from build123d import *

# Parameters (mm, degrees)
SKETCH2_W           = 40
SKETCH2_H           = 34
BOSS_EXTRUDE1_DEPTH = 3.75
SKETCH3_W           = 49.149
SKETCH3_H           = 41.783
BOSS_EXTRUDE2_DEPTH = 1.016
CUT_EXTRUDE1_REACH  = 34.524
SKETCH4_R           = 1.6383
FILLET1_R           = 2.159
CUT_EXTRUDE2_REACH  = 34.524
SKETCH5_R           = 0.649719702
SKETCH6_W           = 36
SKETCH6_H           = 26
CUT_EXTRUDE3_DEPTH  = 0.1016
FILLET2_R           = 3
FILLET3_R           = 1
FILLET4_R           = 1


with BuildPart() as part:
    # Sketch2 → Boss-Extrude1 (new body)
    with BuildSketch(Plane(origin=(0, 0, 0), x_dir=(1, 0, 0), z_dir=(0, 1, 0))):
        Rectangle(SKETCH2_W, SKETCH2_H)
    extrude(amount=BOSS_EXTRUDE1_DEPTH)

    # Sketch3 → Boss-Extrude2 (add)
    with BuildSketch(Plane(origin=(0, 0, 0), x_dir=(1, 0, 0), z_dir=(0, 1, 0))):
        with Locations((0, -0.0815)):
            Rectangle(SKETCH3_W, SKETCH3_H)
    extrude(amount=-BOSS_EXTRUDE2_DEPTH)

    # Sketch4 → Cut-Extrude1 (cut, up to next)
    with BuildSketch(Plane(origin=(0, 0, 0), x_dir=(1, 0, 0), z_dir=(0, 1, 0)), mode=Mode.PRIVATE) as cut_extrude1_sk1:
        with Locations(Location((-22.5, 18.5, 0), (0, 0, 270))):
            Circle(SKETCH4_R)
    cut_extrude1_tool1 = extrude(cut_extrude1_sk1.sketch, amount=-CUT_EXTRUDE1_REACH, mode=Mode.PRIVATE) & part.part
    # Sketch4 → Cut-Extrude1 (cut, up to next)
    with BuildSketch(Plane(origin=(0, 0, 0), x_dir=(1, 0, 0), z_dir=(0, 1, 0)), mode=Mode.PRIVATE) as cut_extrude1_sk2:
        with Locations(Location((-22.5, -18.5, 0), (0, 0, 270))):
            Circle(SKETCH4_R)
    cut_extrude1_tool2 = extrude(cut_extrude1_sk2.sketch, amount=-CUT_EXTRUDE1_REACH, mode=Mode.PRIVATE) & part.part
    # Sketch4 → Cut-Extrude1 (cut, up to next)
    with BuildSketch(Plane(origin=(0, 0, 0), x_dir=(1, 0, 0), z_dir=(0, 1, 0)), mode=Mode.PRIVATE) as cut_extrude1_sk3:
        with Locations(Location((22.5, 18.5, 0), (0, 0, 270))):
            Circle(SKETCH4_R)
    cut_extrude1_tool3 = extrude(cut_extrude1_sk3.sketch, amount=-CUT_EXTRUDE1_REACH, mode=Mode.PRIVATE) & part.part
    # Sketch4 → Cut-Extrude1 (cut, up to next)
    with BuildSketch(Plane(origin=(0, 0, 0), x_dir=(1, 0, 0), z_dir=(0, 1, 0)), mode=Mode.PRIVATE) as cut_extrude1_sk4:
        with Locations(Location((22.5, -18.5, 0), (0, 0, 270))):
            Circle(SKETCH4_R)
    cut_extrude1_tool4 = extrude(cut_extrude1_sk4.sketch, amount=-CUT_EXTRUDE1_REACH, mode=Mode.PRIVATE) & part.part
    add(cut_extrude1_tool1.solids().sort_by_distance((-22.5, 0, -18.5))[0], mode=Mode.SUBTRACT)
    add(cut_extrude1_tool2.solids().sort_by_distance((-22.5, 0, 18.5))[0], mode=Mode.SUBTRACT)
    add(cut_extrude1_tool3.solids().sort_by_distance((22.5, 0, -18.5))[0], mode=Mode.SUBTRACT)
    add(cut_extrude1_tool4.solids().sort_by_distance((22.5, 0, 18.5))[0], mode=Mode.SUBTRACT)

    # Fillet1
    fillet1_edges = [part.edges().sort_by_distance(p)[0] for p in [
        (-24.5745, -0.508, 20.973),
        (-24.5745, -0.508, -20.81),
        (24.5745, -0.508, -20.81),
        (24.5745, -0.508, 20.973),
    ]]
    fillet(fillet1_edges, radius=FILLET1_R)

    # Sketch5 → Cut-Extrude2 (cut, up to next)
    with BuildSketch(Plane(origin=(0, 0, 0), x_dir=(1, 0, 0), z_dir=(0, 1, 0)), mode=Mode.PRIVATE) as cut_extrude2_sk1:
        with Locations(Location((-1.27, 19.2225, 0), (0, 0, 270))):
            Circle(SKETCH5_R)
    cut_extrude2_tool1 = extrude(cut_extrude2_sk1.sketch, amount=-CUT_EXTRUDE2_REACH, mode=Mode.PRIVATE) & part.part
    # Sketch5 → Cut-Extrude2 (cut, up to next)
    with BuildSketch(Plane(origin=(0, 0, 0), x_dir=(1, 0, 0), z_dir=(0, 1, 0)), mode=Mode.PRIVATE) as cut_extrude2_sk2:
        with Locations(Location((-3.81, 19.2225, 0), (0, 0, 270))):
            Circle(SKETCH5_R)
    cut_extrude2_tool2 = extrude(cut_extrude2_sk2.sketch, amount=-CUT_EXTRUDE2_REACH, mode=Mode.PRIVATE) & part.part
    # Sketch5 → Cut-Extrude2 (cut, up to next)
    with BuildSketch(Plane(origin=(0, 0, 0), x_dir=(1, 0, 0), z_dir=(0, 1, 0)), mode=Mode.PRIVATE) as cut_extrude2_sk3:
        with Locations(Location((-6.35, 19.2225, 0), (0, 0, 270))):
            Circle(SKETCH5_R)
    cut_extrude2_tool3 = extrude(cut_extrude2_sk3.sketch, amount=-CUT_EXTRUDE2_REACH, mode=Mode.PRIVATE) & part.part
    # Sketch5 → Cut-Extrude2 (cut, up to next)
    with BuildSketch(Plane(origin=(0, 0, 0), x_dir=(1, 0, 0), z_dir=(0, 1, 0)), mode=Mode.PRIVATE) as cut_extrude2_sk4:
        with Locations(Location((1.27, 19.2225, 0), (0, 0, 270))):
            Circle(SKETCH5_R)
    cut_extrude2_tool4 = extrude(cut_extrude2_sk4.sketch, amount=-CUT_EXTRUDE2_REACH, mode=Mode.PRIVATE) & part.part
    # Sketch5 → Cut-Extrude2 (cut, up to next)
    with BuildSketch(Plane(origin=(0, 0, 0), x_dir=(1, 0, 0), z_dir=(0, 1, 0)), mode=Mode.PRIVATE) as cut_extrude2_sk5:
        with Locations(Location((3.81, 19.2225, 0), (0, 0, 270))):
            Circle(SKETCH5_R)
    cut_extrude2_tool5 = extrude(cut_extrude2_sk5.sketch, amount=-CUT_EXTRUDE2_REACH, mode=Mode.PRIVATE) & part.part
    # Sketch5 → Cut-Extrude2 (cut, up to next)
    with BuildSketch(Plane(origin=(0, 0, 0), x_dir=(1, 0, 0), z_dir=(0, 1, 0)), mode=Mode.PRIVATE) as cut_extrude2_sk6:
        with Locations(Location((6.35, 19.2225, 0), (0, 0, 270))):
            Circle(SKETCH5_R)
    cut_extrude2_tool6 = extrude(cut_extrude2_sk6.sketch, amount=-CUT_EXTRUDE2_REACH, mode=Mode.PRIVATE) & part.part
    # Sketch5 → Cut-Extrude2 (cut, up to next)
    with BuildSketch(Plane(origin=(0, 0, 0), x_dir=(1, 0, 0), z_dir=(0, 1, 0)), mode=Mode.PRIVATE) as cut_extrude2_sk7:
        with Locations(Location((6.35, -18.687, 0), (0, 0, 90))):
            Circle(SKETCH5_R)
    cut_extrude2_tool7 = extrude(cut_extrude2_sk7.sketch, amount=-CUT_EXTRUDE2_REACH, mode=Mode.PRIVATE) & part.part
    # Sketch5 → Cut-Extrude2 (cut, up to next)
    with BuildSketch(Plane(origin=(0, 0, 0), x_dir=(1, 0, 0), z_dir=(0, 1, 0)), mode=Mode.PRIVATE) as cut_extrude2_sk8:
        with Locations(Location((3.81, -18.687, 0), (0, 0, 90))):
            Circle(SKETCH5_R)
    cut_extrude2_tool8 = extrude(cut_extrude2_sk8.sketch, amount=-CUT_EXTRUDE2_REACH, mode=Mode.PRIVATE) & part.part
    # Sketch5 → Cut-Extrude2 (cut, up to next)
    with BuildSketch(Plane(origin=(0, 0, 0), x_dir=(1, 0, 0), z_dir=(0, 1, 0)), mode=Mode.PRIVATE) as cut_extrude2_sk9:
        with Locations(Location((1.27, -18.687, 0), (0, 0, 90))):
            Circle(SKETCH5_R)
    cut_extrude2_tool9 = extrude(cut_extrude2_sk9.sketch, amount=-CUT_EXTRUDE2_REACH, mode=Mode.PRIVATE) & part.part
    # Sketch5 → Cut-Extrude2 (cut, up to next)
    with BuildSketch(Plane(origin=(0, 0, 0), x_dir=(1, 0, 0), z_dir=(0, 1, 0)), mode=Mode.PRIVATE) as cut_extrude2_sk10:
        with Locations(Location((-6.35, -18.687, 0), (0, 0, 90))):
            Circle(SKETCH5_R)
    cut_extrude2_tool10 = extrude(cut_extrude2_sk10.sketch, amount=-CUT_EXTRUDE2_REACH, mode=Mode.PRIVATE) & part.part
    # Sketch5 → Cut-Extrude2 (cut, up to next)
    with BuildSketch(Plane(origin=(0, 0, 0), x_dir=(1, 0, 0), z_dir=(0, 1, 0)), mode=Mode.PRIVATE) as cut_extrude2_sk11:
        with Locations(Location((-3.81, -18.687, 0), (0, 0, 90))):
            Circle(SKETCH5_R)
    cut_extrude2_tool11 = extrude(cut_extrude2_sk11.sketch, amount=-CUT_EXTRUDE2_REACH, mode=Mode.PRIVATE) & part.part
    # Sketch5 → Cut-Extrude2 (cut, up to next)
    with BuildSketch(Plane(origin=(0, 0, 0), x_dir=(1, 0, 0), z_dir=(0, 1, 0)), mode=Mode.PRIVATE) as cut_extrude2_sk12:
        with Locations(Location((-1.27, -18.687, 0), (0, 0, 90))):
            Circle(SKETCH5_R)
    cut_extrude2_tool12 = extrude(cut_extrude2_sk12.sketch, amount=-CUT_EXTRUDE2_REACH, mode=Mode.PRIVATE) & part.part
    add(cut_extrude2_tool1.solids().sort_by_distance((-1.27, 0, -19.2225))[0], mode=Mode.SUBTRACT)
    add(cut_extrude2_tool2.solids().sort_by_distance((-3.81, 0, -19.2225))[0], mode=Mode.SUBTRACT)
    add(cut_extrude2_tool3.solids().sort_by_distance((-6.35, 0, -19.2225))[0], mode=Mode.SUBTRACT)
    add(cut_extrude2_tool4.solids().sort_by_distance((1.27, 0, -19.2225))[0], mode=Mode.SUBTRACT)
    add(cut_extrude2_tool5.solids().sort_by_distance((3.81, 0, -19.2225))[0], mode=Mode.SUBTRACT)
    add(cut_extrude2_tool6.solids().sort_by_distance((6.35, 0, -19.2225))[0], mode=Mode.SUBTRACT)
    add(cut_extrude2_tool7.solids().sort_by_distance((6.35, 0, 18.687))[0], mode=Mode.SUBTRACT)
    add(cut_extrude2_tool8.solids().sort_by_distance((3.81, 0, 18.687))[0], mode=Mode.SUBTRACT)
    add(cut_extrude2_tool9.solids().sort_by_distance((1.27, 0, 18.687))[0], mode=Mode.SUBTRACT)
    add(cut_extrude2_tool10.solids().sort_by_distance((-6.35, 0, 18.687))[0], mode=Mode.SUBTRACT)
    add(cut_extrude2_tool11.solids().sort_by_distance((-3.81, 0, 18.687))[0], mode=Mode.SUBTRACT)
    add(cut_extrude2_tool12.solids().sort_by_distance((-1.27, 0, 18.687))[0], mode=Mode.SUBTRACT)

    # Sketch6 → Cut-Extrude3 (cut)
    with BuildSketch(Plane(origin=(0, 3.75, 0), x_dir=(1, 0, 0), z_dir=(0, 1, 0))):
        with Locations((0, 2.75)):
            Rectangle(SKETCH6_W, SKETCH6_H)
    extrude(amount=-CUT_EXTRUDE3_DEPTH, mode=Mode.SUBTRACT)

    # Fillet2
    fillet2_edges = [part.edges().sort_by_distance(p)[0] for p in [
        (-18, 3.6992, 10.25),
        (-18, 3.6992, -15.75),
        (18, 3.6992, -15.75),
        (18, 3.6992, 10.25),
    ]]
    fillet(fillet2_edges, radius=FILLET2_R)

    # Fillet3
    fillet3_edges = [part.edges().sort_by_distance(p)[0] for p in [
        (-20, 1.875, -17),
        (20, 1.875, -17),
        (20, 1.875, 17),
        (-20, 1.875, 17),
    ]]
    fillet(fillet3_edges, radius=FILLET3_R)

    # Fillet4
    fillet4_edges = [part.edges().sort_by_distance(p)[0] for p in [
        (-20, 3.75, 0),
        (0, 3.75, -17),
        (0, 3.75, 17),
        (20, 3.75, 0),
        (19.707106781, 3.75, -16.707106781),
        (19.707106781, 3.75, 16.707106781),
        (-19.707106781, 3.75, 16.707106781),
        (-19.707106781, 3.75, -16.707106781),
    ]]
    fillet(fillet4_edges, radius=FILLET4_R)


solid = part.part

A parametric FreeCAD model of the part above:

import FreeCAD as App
import Part
import Sketcher
from FreeCAD import Vector
Q = App.Units.Quantity


def edges_at(feature, points):
    """Names of the edges that pass closest to the given points."""
    edges = feature.Shape.Edges
    near = lambda p: min(range(len(edges)), key=lambda i: edges[i].distToShape(Part.Vertex(*p))[0])
    return sorted({f"Edge{near(p) + 1}" for p in points})

doc = App.newDocument("Part")
params = doc.addObject("Spreadsheet::Sheet", "Params")
for row, (alias, value) in enumerate([
    ("sketch1_width", "40 mm"),
    ("sketch1_height", "34 mm"),
    ("pad1_length", "3.75 mm"),
    ("pad2_length", "1.016 mm"),
    ("fillet_radius", "2.159 mm"),
    ("sketch19_width", "36 mm"),
    ("sketch19_height", "26 mm"),
    ("pocket17_length", "0.1016 mm"),
    ("fillet2_radius", "3 mm"),
    ("fillet3_radius", "1 mm"),
    ("fillet4_radius", "1 mm"),
], start=1):
    params.set(f"A{row}", alias)
    params.set(f"B{row}", "=" + value)
    params.setAlias(f"B{row}", alias)

body = doc.addObject("PartDesign::Body", "Body")

# Sketch on XZ plane
sketch1 = doc.addObject("Sketcher::SketchObject", "Sketch")
body.addObject(sketch1)
sketch1.AttachmentSupport = (doc.XZ_Plane, [""])
sketch1.MapMode = "FlatFace"
sketch1.addGeometry([
    Part.LineSegment(Vector(-20, -17, 0), Vector(-20, 17, 0)),
    Part.LineSegment(Vector(-20, 17, 0), Vector(20, 17, 0)),
    Part.LineSegment(Vector(20, 17, 0), Vector(20, -17, 0)),
    Part.LineSegment(Vector(20, -17, 0), Vector(-20, -17, 0)),
], False)
sketch1.addConstraint([
    Sketcher.Constraint("Coincident", 0, 2, 1, 1),
    Sketcher.Constraint("Coincident", 1, 2, 2, 1),
    Sketcher.Constraint("Coincident", 2, 2, 3, 1),
    Sketcher.Constraint("Coincident", 3, 2, 0, 1),
    Sketcher.Constraint("Vertical", 0),
    Sketcher.Constraint("Horizontal", 1),
    Sketcher.Constraint("Vertical", 2),
    Sketcher.Constraint("Horizontal", 3),
    Sketcher.Constraint("Symmetric", 0, 2, 2, 2, -1, 1),
    Sketcher.Constraint("DistanceX", 1, 1, 1, 2, Q("40 mm")),
    Sketcher.Constraint("DistanceY", 0, 1, 0, 2, Q("34 mm")),
])
sketch1.setExpression("Constraints[9]", "Params.sketch1_width")
sketch1.setExpression("Constraints[10]", "Params.sketch1_height")
pad1 = doc.addObject("PartDesign::Pad", "Pad")
body.addObject(pad1)
pad1.Profile = sketch1
pad1.setExpression("Length", "Params.pad1_length")
pad1.Reversed = True

# Sketch on XZ plane
sketch2 = doc.addObject("Sketcher::SketchObject", "Sketch001")
body.addObject(sketch2)
sketch2.AttachmentSupport = (doc.XZ_Plane, [""])
sketch2.MapMode = "FlatFace"
sketch2.addGeometry([
    Part.LineSegment(Vector(-25, -21, 0), Vector(-25, 21, 0)),
    Part.LineSegment(Vector(-25, 21, 0), Vector(25, 21, 0)),
    Part.LineSegment(Vector(25, 21, 0), Vector(25, -21, 0)),
    Part.LineSegment(Vector(25, -21, 0), Vector(-25, -21, 0)),
], False)
sketch2.addConstraint([
    Sketcher.Constraint("Coincident", 0, 2, 1, 1),
    Sketcher.Constraint("Coincident", 1, 2, 2, 1),
    Sketcher.Constraint("Coincident", 2, 2, 3, 1),
    Sketcher.Constraint("Coincident", 3, 2, 0, 1),
    Sketcher.Constraint("Vertical", 0),
    Sketcher.Constraint("Horizontal", 1),
    Sketcher.Constraint("Vertical", 2),
    Sketcher.Constraint("Horizontal", 3),
    Sketcher.Constraint("DistanceX", 1, 1, 1, 2, Q("49.149 mm")),
    Sketcher.Constraint("DistanceY", 0, 1, 0, 2, Q("41.783 mm")),
    Sketcher.Constraint("DistanceY", 2, 2, -1, 1, Q("20.81 mm")),
    Sketcher.Constraint("DistanceX", 0, 2, -1, 1, Q("24.5745 mm")),
])
pad2 = doc.addObject("PartDesign::Pad", "Pad001")
body.addObject(pad2)
pad2.Profile = sketch2
pad2.setExpression("Length", "Params.pad2_length")

# Sketch on XZ plane
sketch3 = doc.addObject("Sketcher::SketchObject", "Sketch002")
body.addObject(sketch3)
sketch3.AttachmentSupport = (doc.XZ_Plane, [""])
sketch3.MapMode = "FlatFace"
sketch3.addGeometry(Part.Circle(Vector(-22.5, -18.5, 0), Vector(0, 0, 1), 1.6), False)
sketch3.addConstraint([
    Sketcher.Constraint("Diameter", 0, Q("3.2766 mm")),
    Sketcher.Constraint("DistanceX", 0, 3, -1, 1, Q("22.5 mm")),
    Sketcher.Constraint("DistanceY", 0, 3, -1, 1, Q("18.5 mm")),
])
pocket1 = doc.addObject("PartDesign::Pocket", "Pocket")
body.addObject(pocket1)
pocket1.Profile = sketch3
pocket1.Type = "UpToFirst"
pocket1.Reversed = True

# Sketch on XZ plane
sketch4 = doc.addObject("Sketcher::SketchObject", "Sketch003")
body.addObject(sketch4)
sketch4.AttachmentSupport = (doc.XZ_Plane, [""])
sketch4.MapMode = "FlatFace"
sketch4.addGeometry(Part.Circle(Vector(-22.5, 18.5, 0), Vector(0, 0, 1), 1.6), False)
sketch4.addConstraint([
    Sketcher.Constraint("Diameter", 0, Q("3.2766 mm")),
    Sketcher.Constraint("DistanceX", 0, 3, -1, 1, Q("22.5 mm")),
    Sketcher.Constraint("DistanceY", -1, 1, 0, 3, Q("18.5 mm")),
])
pocket2 = doc.addObject("PartDesign::Pocket", "Pocket001")
body.addObject(pocket2)
pocket2.Profile = sketch4
pocket2.Type = "UpToFirst"
pocket2.Reversed = True

# Sketch on XZ plane
sketch5 = doc.addObject("Sketcher::SketchObject", "Sketch004")
body.addObject(sketch5)
sketch5.AttachmentSupport = (doc.XZ_Plane, [""])
sketch5.MapMode = "FlatFace"
sketch5.addGeometry(Part.Circle(Vector(22.5, -18.5, 0), Vector(0, 0, 1), 1.6), False)
sketch5.addConstraint([
    Sketcher.Constraint("Diameter", 0, Q("3.2766 mm")),
    Sketcher.Constraint("DistanceX", -1, 1, 0, 3, Q("22.5 mm")),
    Sketcher.Constraint("DistanceY", 0, 3, -1, 1, Q("18.5 mm")),
])
pocket3 = doc.addObject("PartDesign::Pocket", "Pocket002")
body.addObject(pocket3)
pocket3.Profile = sketch5
pocket3.Type = "UpToFirst"
pocket3.Reversed = True

# Sketch on XZ plane
sketch6 = doc.addObject("Sketcher::SketchObject", "Sketch005")
body.addObject(sketch6)
sketch6.AttachmentSupport = (doc.XZ_Plane, [""])
sketch6.MapMode = "FlatFace"
sketch6.addGeometry(Part.Circle(Vector(22.5, 18.5, 0), Vector(0, 0, 1), 1.6), False)
sketch6.addConstraint([
    Sketcher.Constraint("Diameter", 0, Q("3.2766 mm")),
    Sketcher.Constraint("DistanceX", -1, 1, 0, 3, Q("22.5 mm")),
    Sketcher.Constraint("DistanceY", -1, 1, 0, 3, Q("18.5 mm")),
])
pocket4 = doc.addObject("PartDesign::Pocket", "Pocket003")
body.addObject(pocket4)
pocket4.Profile = sketch6
pocket4.Type = "UpToFirst"
pocket4.Reversed = True
doc.recompute()

fillet = doc.addObject("PartDesign::Fillet", "Fillet")
body.addObject(fillet)
fillet.Base = (pocket4, edges_at(pocket4, [
    (-24.575, -0.508, 20.973),
    (-24.575, -0.508, -20.81),
    (24.575, -0.508, -20.81),
    (24.575, -0.508, 20.973),
]))
fillet.setExpression("Radius", "Params.fillet_radius")

# Sketch on XZ plane
sketch7 = doc.addObject("Sketcher::SketchObject", "Sketch006")
body.addObject(sketch7)
sketch7.AttachmentSupport = (doc.XZ_Plane, [""])
sketch7.MapMode = "FlatFace"
sketch7.addGeometry(Part.Circle(Vector(-1.3, -19.2, 0), Vector(0, 0, 1), 0.6), False)
sketch7.addConstraint([
    Sketcher.Constraint("Diameter", 0, Q("1.299439 mm")),
    Sketcher.Constraint("DistanceX", 0, 3, -1, 1, Q("1.27 mm")),
    Sketcher.Constraint("DistanceY", 0, 3, -1, 1, Q("19.2225 mm")),
])
pocket5 = doc.addObject("PartDesign::Pocket", "Pocket004")
body.addObject(pocket5)
pocket5.Profile = sketch7
pocket5.Type = "UpToFirst"
pocket5.Reversed = True

# Sketch on XZ plane
sketch8 = doc.addObject("Sketcher::SketchObject", "Sketch007")
body.addObject(sketch8)
sketch8.AttachmentSupport = (doc.XZ_Plane, [""])
sketch8.MapMode = "FlatFace"
sketch8.addGeometry(Part.Circle(Vector(-3.8, -19.2, 0), Vector(0, 0, 1), 0.6), False)
sketch8.addConstraint([
    Sketcher.Constraint("Diameter", 0, Q("1.299439 mm")),
    Sketcher.Constraint("DistanceX", 0, 3, -1, 1, Q("3.81 mm")),
    Sketcher.Constraint("DistanceY", 0, 3, -1, 1, Q("19.2225 mm")),
])
pocket6 = doc.addObject("PartDesign::Pocket", "Pocket005")
body.addObject(pocket6)
pocket6.Profile = sketch8
pocket6.Type = "UpToFirst"
pocket6.Reversed = True

# Sketch on XZ plane
sketch9 = doc.addObject("Sketcher::SketchObject", "Sketch008")
body.addObject(sketch9)
sketch9.AttachmentSupport = (doc.XZ_Plane, [""])
sketch9.MapMode = "FlatFace"
sketch9.addGeometry(Part.Circle(Vector(-6.3, -19.2, 0), Vector(0, 0, 1), 0.6), False)
sketch9.addConstraint([
    Sketcher.Constraint("Diameter", 0, Q("1.299439 mm")),
    Sketcher.Constraint("DistanceX", 0, 3, -1, 1, Q("6.35 mm")),
    Sketcher.Constraint("DistanceY", 0, 3, -1, 1, Q("19.2225 mm")),
])
pocket7 = doc.addObject("PartDesign::Pocket", "Pocket006")
body.addObject(pocket7)
pocket7.Profile = sketch9
pocket7.Type = "UpToFirst"
pocket7.Reversed = True

# Sketch on XZ plane
sketch10 = doc.addObject("Sketcher::SketchObject", "Sketch009")
body.addObject(sketch10)
sketch10.AttachmentSupport = (doc.XZ_Plane, [""])
sketch10.MapMode = "FlatFace"
sketch10.addGeometry(Part.Circle(Vector(1.3, -19.2, 0), Vector(0, 0, 1), 0.6), False)
sketch10.addConstraint([
    Sketcher.Constraint("Diameter", 0, Q("1.299439 mm")),
    Sketcher.Constraint("DistanceX", -1, 1, 0, 3, Q("1.27 mm")),
    Sketcher.Constraint("DistanceY", 0, 3, -1, 1, Q("19.2225 mm")),
])
pocket8 = doc.addObject("PartDesign::Pocket", "Pocket007")
body.addObject(pocket8)
pocket8.Profile = sketch10
pocket8.Type = "UpToFirst"
pocket8.Reversed = True

# Sketch on XZ plane
sketch11 = doc.addObject("Sketcher::SketchObject", "Sketch010")
body.addObject(sketch11)
sketch11.AttachmentSupport = (doc.XZ_Plane, [""])
sketch11.MapMode = "FlatFace"
sketch11.addGeometry(Part.Circle(Vector(3.8, -19.2, 0), Vector(0, 0, 1), 0.6), False)
sketch11.addConstraint([
    Sketcher.Constraint("Diameter", 0, Q("1.299439 mm")),
    Sketcher.Constraint("DistanceX", -1, 1, 0, 3, Q("3.81 mm")),
    Sketcher.Constraint("DistanceY", 0, 3, -1, 1, Q("19.2225 mm")),
])
pocket9 = doc.addObject("PartDesign::Pocket", "Pocket008")
body.addObject(pocket9)
pocket9.Profile = sketch11
pocket9.Type = "UpToFirst"
pocket9.Reversed = True

# Sketch on XZ plane
sketch12 = doc.addObject("Sketcher::SketchObject", "Sketch011")
body.addObject(sketch12)
sketch12.AttachmentSupport = (doc.XZ_Plane, [""])
sketch12.MapMode = "FlatFace"
sketch12.addGeometry(Part.Circle(Vector(6.3, -19.2, 0), Vector(0, 0, 1), 0.6), False)
sketch12.addConstraint([
    Sketcher.Constraint("Diameter", 0, Q("1.299439 mm")),
    Sketcher.Constraint("DistanceX", -1, 1, 0, 3, Q("6.35 mm")),
    Sketcher.Constraint("DistanceY", 0, 3, -1, 1, Q("19.2225 mm")),
])
pocket10 = doc.addObject("PartDesign::Pocket", "Pocket009")
body.addObject(pocket10)
pocket10.Profile = sketch12
pocket10.Type = "UpToFirst"
pocket10.Reversed = True

# Sketch on XZ plane
sketch13 = doc.addObject("Sketcher::SketchObject", "Sketch012")
body.addObject(sketch13)
sketch13.AttachmentSupport = (doc.XZ_Plane, [""])
sketch13.MapMode = "FlatFace"
sketch13.addGeometry(Part.Circle(Vector(6.3, 18.7, 0), Vector(0, 0, 1), 0.6), False)
sketch13.addConstraint([
    Sketcher.Constraint("Diameter", 0, Q("1.299439 mm")),
    Sketcher.Constraint("DistanceX", -1, 1, 0, 3, Q("6.35 mm")),
    Sketcher.Constraint("DistanceY", -1, 1, 0, 3, Q("18.687 mm")),
])
pocket11 = doc.addObject("PartDesign::Pocket", "Pocket010")
body.addObject(pocket11)
pocket11.Profile = sketch13
pocket11.Type = "UpToFirst"
pocket11.Reversed = True

# Sketch on XZ plane
sketch14 = doc.addObject("Sketcher::SketchObject", "Sketch013")
body.addObject(sketch14)
sketch14.AttachmentSupport = (doc.XZ_Plane, [""])
sketch14.MapMode = "FlatFace"
sketch14.addGeometry(Part.Circle(Vector(3.8, 18.7, 0), Vector(0, 0, 1), 0.6), False)
sketch14.addConstraint([
    Sketcher.Constraint("Diameter", 0, Q("1.299439 mm")),
    Sketcher.Constraint("DistanceX", -1, 1, 0, 3, Q("3.81 mm")),
    Sketcher.Constraint("DistanceY", -1, 1, 0, 3, Q("18.687 mm")),
])
pocket12 = doc.addObject("PartDesign::Pocket", "Pocket011")
body.addObject(pocket12)
pocket12.Profile = sketch14
pocket12.Type = "UpToFirst"
pocket12.Reversed = True

# Sketch on XZ plane
sketch15 = doc.addObject("Sketcher::SketchObject", "Sketch014")
body.addObject(sketch15)
sketch15.AttachmentSupport = (doc.XZ_Plane, [""])
sketch15.MapMode = "FlatFace"
sketch15.addGeometry(Part.Circle(Vector(1.3, 18.7, 0), Vector(0, 0, 1), 0.6), False)
sketch15.addConstraint([
    Sketcher.Constraint("Diameter", 0, Q("1.299439 mm")),
    Sketcher.Constraint("DistanceX", -1, 1, 0, 3, Q("1.27 mm")),
    Sketcher.Constraint("DistanceY", -1, 1, 0, 3, Q("18.687 mm")),
])
pocket13 = doc.addObject("PartDesign::Pocket", "Pocket012")
body.addObject(pocket13)
pocket13.Profile = sketch15
pocket13.Type = "UpToFirst"
pocket13.Reversed = True

# Sketch on XZ plane
sketch16 = doc.addObject("Sketcher::SketchObject", "Sketch015")
body.addObject(sketch16)
sketch16.AttachmentSupport = (doc.XZ_Plane, [""])
sketch16.MapMode = "FlatFace"
sketch16.addGeometry(Part.Circle(Vector(-6.3, 18.7, 0), Vector(0, 0, 1), 0.6), False)
sketch16.addConstraint([
    Sketcher.Constraint("Diameter", 0, Q("1.299439 mm")),
    Sketcher.Constraint("DistanceX", 0, 3, -1, 1, Q("6.35 mm")),
    Sketcher.Constraint("DistanceY", -1, 1, 0, 3, Q("18.687 mm")),
])
pocket14 = doc.addObject("PartDesign::Pocket", "Pocket013")
body.addObject(pocket14)
pocket14.Profile = sketch16
pocket14.Type = "UpToFirst"
pocket14.Reversed = True

# Sketch on XZ plane
sketch17 = doc.addObject("Sketcher::SketchObject", "Sketch016")
body.addObject(sketch17)
sketch17.AttachmentSupport = (doc.XZ_Plane, [""])
sketch17.MapMode = "FlatFace"
sketch17.addGeometry(Part.Circle(Vector(-3.8, 18.7, 0), Vector(0, 0, 1), 0.6), False)
sketch17.addConstraint([
    Sketcher.Constraint("Diameter", 0, Q("1.299439 mm")),
    Sketcher.Constraint("DistanceX", 0, 3, -1, 1, Q("3.81 mm")),
    Sketcher.Constraint("DistanceY", -1, 1, 0, 3, Q("18.687 mm")),
])
pocket15 = doc.addObject("PartDesign::Pocket", "Pocket014")
body.addObject(pocket15)
pocket15.Profile = sketch17
pocket15.Type = "UpToFirst"
pocket15.Reversed = True

# Sketch on XZ plane
sketch18 = doc.addObject("Sketcher::SketchObject", "Sketch017")
body.addObject(sketch18)
sketch18.AttachmentSupport = (doc.XZ_Plane, [""])
sketch18.MapMode = "FlatFace"
sketch18.addGeometry(Part.Circle(Vector(-1.3, 18.7, 0), Vector(0, 0, 1), 0.6), False)
sketch18.addConstraint([
    Sketcher.Constraint("Diameter", 0, Q("1.299439 mm")),
    Sketcher.Constraint("DistanceX", 0, 3, -1, 1, Q("1.27 mm")),
    Sketcher.Constraint("DistanceY", -1, 1, 0, 3, Q("18.687 mm")),
])
pocket16 = doc.addObject("PartDesign::Pocket", "Pocket015")
body.addObject(pocket16)
pocket16.Profile = sketch18
pocket16.Type = "UpToFirst"
pocket16.Reversed = True

# Sketch on XZ plane
sketch19 = doc.addObject("Sketcher::SketchObject", "Sketch018")
body.addObject(sketch19)
sketch19.AttachmentSupport = (doc.XZ_Plane, [""])
sketch19.MapMode = "FlatFace"
sketch19.AttachmentOffset = App.Placement(Vector(0, 0, -3.75), App.Rotation())
sketch19.addGeometry([
    Part.LineSegment(Vector(-18, -16, 0), Vector(-18, 10, 0)),
    Part.LineSegment(Vector(-18, 10, 0), Vector(18, 10, 0)),
    Part.LineSegment(Vector(18, 10, 0), Vector(18, -16, 0)),
    Part.LineSegment(Vector(18, -16, 0), Vector(-18, -16, 0)),
], False)
sketch19.addConstraint([
    Sketcher.Constraint("Coincident", 0, 2, 1, 1),
    Sketcher.Constraint("Coincident", 1, 2, 2, 1),
    Sketcher.Constraint("Coincident", 2, 2, 3, 1),
    Sketcher.Constraint("Coincident", 3, 2, 0, 1),
    Sketcher.Constraint("Vertical", 0),
    Sketcher.Constraint("Horizontal", 1),
    Sketcher.Constraint("Vertical", 2),
    Sketcher.Constraint("Horizontal", 3),
    Sketcher.Constraint("DistanceX", 1, 1, 1, 2, Q("36 mm")),
    Sketcher.Constraint("DistanceY", 0, 1, 0, 2, Q("26 mm")),
    Sketcher.Constraint("DistanceX", 0, 2, -1, 1, Q("18 mm")),
    Sketcher.Constraint("DistanceY", -1, 1, 0, 2, Q("10.25 mm")),
])
sketch19.setExpression("Constraints[8]", "Params.sketch19_width")
sketch19.setExpression("Constraints[9]", "Params.sketch19_height")
pocket17 = doc.addObject("PartDesign::Pocket", "Pocket016")
body.addObject(pocket17)
pocket17.Profile = sketch19
pocket17.setExpression("Length", "Params.pocket17_length")
pocket17.Reversed = True
doc.recompute()

fillet2 = doc.addObject("PartDesign::Fillet", "Fillet001")
body.addObject(fillet2)
fillet2.Base = (pocket17, edges_at(pocket17, [
    (-18, 3.699, 10.25),
    (-18, 3.699, -15.75),
    (18, 3.699, -15.75),
    (18, 3.699, 10.25),
]))
fillet2.setExpression("Radius", "Params.fillet2_radius")
doc.recompute()

fillet3 = doc.addObject("PartDesign::Fillet", "Fillet002")
body.addObject(fillet3)
fillet3.Base = (fillet2, edges_at(fillet2, [
    (-20, 1.875, -17),
    (20, 1.875, -17),
    (20, 1.875, 17),
    (-20, 1.875, 17),
]))
fillet3.setExpression("Radius", "Params.fillet3_radius")
doc.recompute()

fillet4 = doc.addObject("PartDesign::Fillet", "Fillet003")
body.addObject(fillet4)
fillet4.Base = (fillet3, edges_at(fillet3, [
    (-20, 3.75, 0),
    (0, 3.75, -17),
    (0, 3.75, 17),
    (20, 3.75, 0),
    (19.707, 3.75, -16.707),
    (19.707, 3.75, 16.707),
    (-19.707, 3.75, 16.707),
    (-19.707, 3.75, -16.707),
]))
fillet4.setExpression("Radius", "Params.fillet4_radius")

doc.recompute()
